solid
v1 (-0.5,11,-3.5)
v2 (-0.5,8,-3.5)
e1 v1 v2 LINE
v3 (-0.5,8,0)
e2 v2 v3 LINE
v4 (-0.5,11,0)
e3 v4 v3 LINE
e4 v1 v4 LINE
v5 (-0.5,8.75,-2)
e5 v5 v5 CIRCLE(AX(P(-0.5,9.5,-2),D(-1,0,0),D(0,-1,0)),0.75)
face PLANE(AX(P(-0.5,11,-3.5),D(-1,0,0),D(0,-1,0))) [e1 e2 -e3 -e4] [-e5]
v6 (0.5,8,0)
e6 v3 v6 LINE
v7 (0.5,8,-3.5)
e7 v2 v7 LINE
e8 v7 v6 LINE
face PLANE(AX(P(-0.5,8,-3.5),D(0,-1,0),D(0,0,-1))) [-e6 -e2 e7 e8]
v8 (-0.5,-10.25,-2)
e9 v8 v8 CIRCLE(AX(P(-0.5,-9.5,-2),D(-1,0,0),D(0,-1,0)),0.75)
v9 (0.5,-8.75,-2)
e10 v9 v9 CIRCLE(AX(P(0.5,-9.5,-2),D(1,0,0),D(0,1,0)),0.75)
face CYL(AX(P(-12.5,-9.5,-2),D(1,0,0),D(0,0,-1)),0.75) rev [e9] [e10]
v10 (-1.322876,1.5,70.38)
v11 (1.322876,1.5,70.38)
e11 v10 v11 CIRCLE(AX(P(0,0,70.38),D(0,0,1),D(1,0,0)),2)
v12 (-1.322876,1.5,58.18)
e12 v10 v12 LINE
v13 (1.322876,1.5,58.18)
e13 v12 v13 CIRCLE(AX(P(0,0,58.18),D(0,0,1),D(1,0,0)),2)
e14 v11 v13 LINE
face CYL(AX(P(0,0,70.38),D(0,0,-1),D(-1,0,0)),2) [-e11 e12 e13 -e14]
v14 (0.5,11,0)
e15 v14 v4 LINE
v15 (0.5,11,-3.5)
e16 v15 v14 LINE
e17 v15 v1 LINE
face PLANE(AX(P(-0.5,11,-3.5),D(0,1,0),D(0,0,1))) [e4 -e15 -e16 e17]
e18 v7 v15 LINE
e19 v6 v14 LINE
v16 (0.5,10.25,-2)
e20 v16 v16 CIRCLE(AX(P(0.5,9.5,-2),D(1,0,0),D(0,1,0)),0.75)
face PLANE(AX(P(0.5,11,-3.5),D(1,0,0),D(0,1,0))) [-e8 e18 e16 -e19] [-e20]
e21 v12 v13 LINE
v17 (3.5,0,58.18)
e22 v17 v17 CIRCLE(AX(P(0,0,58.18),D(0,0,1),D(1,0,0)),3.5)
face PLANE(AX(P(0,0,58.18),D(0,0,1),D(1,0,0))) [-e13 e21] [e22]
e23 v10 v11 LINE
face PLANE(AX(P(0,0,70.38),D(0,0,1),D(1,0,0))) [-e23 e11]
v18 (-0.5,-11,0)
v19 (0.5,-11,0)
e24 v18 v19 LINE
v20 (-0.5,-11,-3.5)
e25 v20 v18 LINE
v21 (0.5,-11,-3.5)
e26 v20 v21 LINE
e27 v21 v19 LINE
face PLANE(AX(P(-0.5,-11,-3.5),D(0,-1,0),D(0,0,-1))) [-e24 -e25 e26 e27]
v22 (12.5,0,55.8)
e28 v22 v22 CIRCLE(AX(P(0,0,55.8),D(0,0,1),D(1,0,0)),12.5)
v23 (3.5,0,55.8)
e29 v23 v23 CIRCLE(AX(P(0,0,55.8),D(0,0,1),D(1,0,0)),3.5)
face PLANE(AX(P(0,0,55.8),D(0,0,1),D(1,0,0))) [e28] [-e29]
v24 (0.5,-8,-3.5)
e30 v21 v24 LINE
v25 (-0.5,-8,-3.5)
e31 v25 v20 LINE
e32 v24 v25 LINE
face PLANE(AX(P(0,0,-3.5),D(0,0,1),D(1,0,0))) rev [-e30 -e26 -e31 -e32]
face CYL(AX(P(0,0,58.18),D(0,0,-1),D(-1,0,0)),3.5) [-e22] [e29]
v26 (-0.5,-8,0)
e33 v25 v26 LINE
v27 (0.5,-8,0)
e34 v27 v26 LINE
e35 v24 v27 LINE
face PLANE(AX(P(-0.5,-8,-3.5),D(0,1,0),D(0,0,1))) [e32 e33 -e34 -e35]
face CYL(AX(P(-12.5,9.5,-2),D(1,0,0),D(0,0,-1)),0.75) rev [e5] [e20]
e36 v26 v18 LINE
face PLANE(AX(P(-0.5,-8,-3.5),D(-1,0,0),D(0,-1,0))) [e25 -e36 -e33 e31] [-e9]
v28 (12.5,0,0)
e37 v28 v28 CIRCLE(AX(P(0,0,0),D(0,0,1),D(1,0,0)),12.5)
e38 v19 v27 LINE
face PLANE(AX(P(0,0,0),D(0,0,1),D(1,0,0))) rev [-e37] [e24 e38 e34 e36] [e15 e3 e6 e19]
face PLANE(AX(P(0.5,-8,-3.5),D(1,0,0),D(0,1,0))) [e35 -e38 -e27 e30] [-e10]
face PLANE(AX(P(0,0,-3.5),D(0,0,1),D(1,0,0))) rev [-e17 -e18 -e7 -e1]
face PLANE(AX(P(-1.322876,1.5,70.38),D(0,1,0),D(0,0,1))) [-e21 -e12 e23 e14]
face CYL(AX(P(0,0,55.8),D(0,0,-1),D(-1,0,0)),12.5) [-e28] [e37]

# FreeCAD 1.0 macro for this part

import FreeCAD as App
import Part
import Sketcher

doc = App.newDocument("Part")
params = doc.addObject("Spreadsheet::Sheet", "Params")
for row, (alias, value) in enumerate([
    ("sketch1_diameter", "25 mm"),
    ("pad1_length", "55.8 mm"),
    ("sketch2_diameter", "7 mm"),
    ("pad2_length", "2.38 mm"),
    ("sketch3_diameter", "4 mm"),
    ("pad3_length", "12.2 mm"),
    ("pocket1_length", "12.2 mm"),
    ("sketch5_width", "1 mm"),
    ("sketch5_height", "3 mm"),
    ("pad4_length", "3.5 mm"),
    ("sketch6_diameter", "1.5 mm"),
], start=1):
    params.set(f"A{row}", alias)
    params.set(f"B{row}", "=" + value)
    params.setAlias(f"B{row}", alias)

body = doc.addObject("PartDesign::Body", "Body")

# Sketch on XY plane
sketch1 = doc.addObject("Sketcher::SketchObject", "Sketch")
body.addObject(sketch1)
sketch1.AttachmentSupport = (doc.XY_Plane, [""])
sketch1.MapMode = "FlatFace"
sketch1.addGeometry(Part.Circle(App.Vector(0, 0, 0), App.Vector(0, 0, 1), 12), False)
sketch1.addConstraint([
    Sketcher.Constraint("Coincident", 0, 3, -1, 1),
    Sketcher.Constraint("Diameter", 0, 25.0),
])
sketch1.setExpression("Constraints[1]", "Params.sketch1_diameter")
pad1 = doc.addObject("PartDesign::Pad", "Pad")
body.addObject(pad1)
pad1.Profile = sketch1
pad1.setExpression("Length", "Params.pad1_length")

# Sketch on XY plane
sketch2 = doc.addObject("Sketcher::SketchObject", "Sketch001")
body.addObject(sketch2)
sketch2.AttachmentSupport = (doc.XY_Plane, [""])
sketch2.MapMode = "FlatFace"
sketch2.AttachmentOffset = App.Placement(App.Vector(0, 0, 55.8), App.Rotation())
sketch2.addGeometry(Part.Circle(App.Vector(0, 0, 0), App.Vector(0, 0, 1), 3.5), False)
sketch2.addConstraint([
    Sketcher.Constraint("Coincident", 0, 3, -1, 1),
    Sketcher.Constraint("Diameter", 0, 7.0),
])
sketch2.setExpression("Constraints[1]", "Params.sketch2_diameter")
pad2 = doc.addObject("PartDesign::Pad", "Pad001")
body.addObject(pad2)
pad2.Profile = sketch2
pad2.setExpression("Length", "Params.pad2_length")

# Sketch on XY plane
sketch3 = doc.addObject("Sketcher::SketchObject", "Sketch002")
body.addObject(sketch3)
sketch3.AttachmentSupport = (doc.XY_Plane, [""])
sketch3.MapMode = "FlatFace"
sketch3.AttachmentOffset = App.Placement(App.Vector(0, 0, 58.18), App.Rotation())
sketch3.addGeometry(Part.Circle(App.Vector(0, 0, 0), App.Vector(0, 0, 1), 2), False)
sketch3.addConstraint([
    Sketcher.Constraint("Coincident", 0, 3, -1, 1),
    Sketcher.Constraint("Diameter", 0, 4.0),
])
sketch3.setExpression("Constraints[1]", "Params.sketch3_diameter")
pad3 = doc.addObject("PartDesign::Pad", "Pad002")
body.addObject(pad3)
pad3.Profile = sketch3
pad3.setExpression("Length", "Params.pad3_length")

# Sketch on XY plane
sketch4 = doc.addObject("Sketcher::SketchObject", "Sketch003")
body.addObject(sketch4)
sketch4.AttachmentSupport = (doc.XY_Plane, [""])
sketch4.MapMode = "FlatFace"
sketch4.AttachmentOffset = App.Placement(App.Vector(0, 0, 58.18), App.Rotation())
sketch4.addGeometry([
    Part.LineSegment(App.Vector(-1.3, 2.7, 0), App.Vector(-1.3, 1.5, 0)),
    Part.LineSegment(App.Vector(-1.3, 1.5, 0), App.Vector(1.3, 1.5, 0)),
    Part.LineSegment(App.Vector(1.3, 1.5, 0), App.Vector(1.3, 2.7, 0)),
    Part.LineSegment(App.Vector(1.3, 2.7, 0), App.Vector(-1.3, 2.7, 0)),
], False)
sketch4.addConstraint([
    Sketcher.Constraint("Coincident", 0, 2, 1, 1),
    Sketcher.Constraint("Coincident", 1, 2, 2, 1),
    Sketcher.Constraint("Coincident", 2, 2, 3, 1),
    Sketcher.Constraint("Coincident", 3, 2, 0, 1),
    Sketcher.Constraint("Vertical", 0),
    Sketcher.Constraint("Horizontal", 1),
    Sketcher.Constraint("Vertical", 2),
    Sketcher.Constraint("Horizontal", 3),
    Sketcher.Constraint("DistanceY", -1, 1, 0, 2, 1.5),
    Sketcher.Constraint("DistanceX", 1, 1, 1, 2, 2.645751),
    Sketcher.Constraint("DistanceY", 0, 2, 0, 1, 1.197133),
    Sketcher.Constraint("DistanceX", 0, 2, -1, 1, 1.322876),
])
pocket1 = doc.addObject("PartDesign::Pocket", "Pocket")
body.addObject(pocket1)
pocket1.Profile = sketch4
pocket1.setExpression("Length", "Params.pocket1_length")
pocket1.Reversed = True

# Sketch on XY plane
sketch5 = doc.addObject("Sketcher::SketchObject", "Sketch004")
body.addObject(sketch5)
sketch5.AttachmentSupport = (doc.XY_Plane, [""])
sketch5.MapMode = "FlatFace"
sketch5.addGeometry([
    Part.LineSegment(App.Vector(-0.5, 11, 0), App.Vector(-0.5, 8, 0)),  # 0
    Part.LineSegment(App.Vector(-0.5, 8, 0), App.Vector(0.5, 8, 0)),  # 1
    Part.LineSegment(App.Vector(0.5, 8, 0), App.Vector(0.5, 11, 0)),  # 2
    Part.LineSegment(App.Vector(0.5, 11, 0), App.Vector(-0.5, 11, 0)),  # 3
    Part.LineSegment(App.Vector(-0.5, -8, 0), App.Vector(-0.5, -11, 0)),  # 4
    Part.LineSegment(App.Vector(-0.5, -11, 0), App.Vector(0.5, -11, 0)),  # 5
    Part.LineSegment(App.Vector(0.5, -11, 0), App.Vector(0.5, -8, 0)),  # 6
    Part.LineSegment(App.Vector(0.5, -8, 0), App.Vector(-0.5, -8, 0)),  # 7
], False)
sketch5.addConstraint([
    Sketcher.Constraint("Coincident", 0, 2, 1, 1),
    Sketcher.Constraint("Coincident", 1, 2, 2, 1),
    Sketcher.Constraint("Coincident", 2, 2, 3, 1),
    Sketcher.Constraint("Coincident", 3, 2, 0, 1),
    Sketcher.Constraint("Coincident", 4, 2, 5, 1),
    Sketcher.Constraint("Coincident", 5, 2, 6, 1),
    Sketcher.Constraint("Coincident", 6, 2, 7, 1),
    Sketcher.Constraint("Coincident", 7, 2, 4, 1),
    Sketcher.Constraint("Vertical", 0),
    Sketcher.Constraint("Horizontal", 1),
    Sketcher.Constraint("Vertical", 2),
    Sketcher.Constraint("Horizontal", 3),
    Sketcher.Constraint("Vertical", 4),
    Sketcher.Constraint("Horizontal", 5),
    Sketcher.Constraint("Vertical", 6),
    Sketcher.Constraint("Horizontal", 7),
    Sketcher.Constraint("Symmetric", 2, 2, 4, 2, -1, 1),
    Sketcher.Constraint("Symmetric", 0, 2, 6, 2, -1, 1),
    Sketcher.Constraint("Vertical", 3, 2, 4, 2),
    Sketcher.Constraint("DistanceX", 1, 1, 1, 2, 1.0),
    Sketcher.Constraint("DistanceY", 0, 2, 0, 1, 3.0),
    Sketcher.Constraint("DistanceY", -1, 1, 0, 2, 8.0),
])
sketch5.setExpression("Constraints[19]", "Params.sketch5_width")
sketch5.setExpression("Constraints[20]", "Params.sketch5_height")
pad4 = doc.addObject("PartDesign::Pad", "Pad003")
body.addObject(pad4)
pad4.Profile = sketch5
pad4.setExpression("Length", "Params.pad4_length")
pad4.Reversed = True

# Sketch on YZ plane
sketch6 = doc.addObject("Sketcher::SketchObject", "Sketch005")
body.addObject(sketch6)
sketch6.AttachmentSupport = (doc.YZ_Plane, [""])
sketch6.MapMode = "FlatFace"
sketch6.addGeometry([
    Part.Circle(App.Vector(9.5, -2, 0), App.Vector(0, 0, 1), 0.8),
    Part.Circle(App.Vector(-9.5, -2, 0), App.Vector(0, 0, 1), 0.8),
], False)
sketch6.addConstraint([
    Sketcher.Constraint("Equal", 0, 1),
    Sketcher.Constraint("Symmetric", 0, 3, 1, 3, -2),
    Sketcher.Constraint("Diameter", 0, 1.5),
    Sketcher.Constraint("DistanceY", 0, 3, -1, 1, 2.0),
    Sketcher.Constraint("DistanceX", 1, 3, 0, 3, 19.0),
])
sketch6.setExpression("Constraints[2]", "Params.sketch6_diameter")
pocket2 = doc.addObject("PartDesign::Pocket", "Pocket001")
body.addObject(pocket2)
pocket2.Profile = sketch6
pocket2.Type = "ThroughAll"
pocket2.Midplane = True

doc.recompute()
